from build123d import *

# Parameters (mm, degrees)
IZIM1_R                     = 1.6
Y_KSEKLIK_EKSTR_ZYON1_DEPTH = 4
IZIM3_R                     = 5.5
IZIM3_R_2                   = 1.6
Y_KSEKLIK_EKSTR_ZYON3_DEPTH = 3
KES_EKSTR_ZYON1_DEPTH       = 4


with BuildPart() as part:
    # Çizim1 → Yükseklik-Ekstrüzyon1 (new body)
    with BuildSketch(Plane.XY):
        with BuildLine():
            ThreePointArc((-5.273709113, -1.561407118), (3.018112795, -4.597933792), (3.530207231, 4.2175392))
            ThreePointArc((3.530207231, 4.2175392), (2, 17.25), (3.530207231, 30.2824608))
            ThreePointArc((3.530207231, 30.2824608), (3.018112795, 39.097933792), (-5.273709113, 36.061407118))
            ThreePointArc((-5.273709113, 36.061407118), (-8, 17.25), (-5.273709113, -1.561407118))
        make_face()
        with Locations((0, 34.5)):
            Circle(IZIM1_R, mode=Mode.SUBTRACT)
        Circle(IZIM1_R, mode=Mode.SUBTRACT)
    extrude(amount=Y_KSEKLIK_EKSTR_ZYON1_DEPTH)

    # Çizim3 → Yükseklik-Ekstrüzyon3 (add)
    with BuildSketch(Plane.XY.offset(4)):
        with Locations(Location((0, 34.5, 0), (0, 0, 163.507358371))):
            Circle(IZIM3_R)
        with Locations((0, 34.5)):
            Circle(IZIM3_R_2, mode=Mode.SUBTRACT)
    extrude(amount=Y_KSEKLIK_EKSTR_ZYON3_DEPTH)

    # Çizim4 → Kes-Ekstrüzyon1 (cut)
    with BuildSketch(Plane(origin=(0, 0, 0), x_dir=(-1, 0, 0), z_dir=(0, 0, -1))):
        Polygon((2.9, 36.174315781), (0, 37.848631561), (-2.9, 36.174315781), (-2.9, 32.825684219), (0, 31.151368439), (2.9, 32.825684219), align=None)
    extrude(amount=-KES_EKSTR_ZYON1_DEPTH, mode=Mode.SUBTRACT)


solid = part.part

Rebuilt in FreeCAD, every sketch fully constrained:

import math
import FreeCAD as App
import Part
import Sketcher

V = App.Vector
Q = App.Units.Quantity

doc = App.newDocument("Part")
params = doc.addObject("Spreadsheet::Sheet", "Params")
for row, (alias, value) in enumerate([
    ("sketch1_diameter", "3.2 mm"),
    ("sketch1_radius", "5.5 mm"),
    ("pad1_length", "4 mm"),
    ("sketch2_diameter", "11 mm"),
    ("sketch2_diameter2", "3.2 mm"),
    ("pad2_length", "3 mm"),
    ("pocket1_length", "4 mm"),
], start=1):
    params.set(f"A{row}", alias)
    params.set(f"B{row}", "=" + value)
    params.setAlias(f"B{row}", alias)

body = doc.addObject("PartDesign::Body", "Body")

# Sketch on XY plane
sketch1 = doc.addObject("Sketcher::SketchObject", "Sketch")
body.addObject(sketch1)
sketch1.AttachmentSupport = (doc.XY_Plane, [""])
sketch1.MapMode = "FlatFace"
sketch1.addGeometry(Part.ArcOfCircle(Part.Circle(V(0, 0, 0), V(0, 0, 1), 5.5), math.radians(-164), math.radians(50)), False)
sketch1.addGeometry(Part.ArcOfCircle(Part.Circle(V(58.3, 17.2, 0), V(0, 0, 1), 56.3), math.radians(167), math.radians(193)), False)
sketch1.addGeometry(Part.ArcOfCircle(Part.Circle(V(0, 34.5, 0), V(0, 0, 1), 5.5), math.radians(-50), math.radians(164)), False)
sketch1.addGeometry(Part.ArcOfCircle(Part.Circle(V(58.3, 17.2, 0), V(0, 0, 1), 66.3), math.radians(164), math.radians(196)), False)
sketch1.addGeometry(Part.Circle(V(0, 0, 0), V(0, 0, 1), 1.6), False)
sketch1.addGeometry(Part.Circle(V(0, 34.5, 0), V(0, 0, 1), 1.6), False)
sketch1.addConstraint(Sketcher.Constraint("Coincident", 0, 2, 1, 2))
sketch1.addConstraint(Sketcher.Constraint("Coincident", 1, 1, 2, 1))
sketch1.addConstraint(Sketcher.Constraint("Tangent", 2, 2, 3, 1))
sketch1.addConstraint(Sketcher.Constraint("Tangent", 3, 2, 0, 1))
sketch1.addConstraint(Sketcher.Constraint("Coincident", 0, 3, -1, 1))
sketch1.addConstraint(Sketcher.Constraint("Coincident", 4, 3, -1, 1))
sketch1.addConstraint(Sketcher.Constraint("Coincident", 3, 3, 1, 3))
sketch1.addConstraint(Sketcher.Constraint("Coincident", 5, 3, 2, 3))
sketch1.addConstraint(Sketcher.Constraint("Equal", 0, 2))
sketch1.addConstraint(Sketcher.Constraint("Equal", 4, 5))
sketch1.addConstraint(Sketcher.Constraint("PointOnObject", 2, 3, -2))
sketch1.addConstraint(Sketcher.Constraint("Diameter", 4, Q("3.2 mm")))
sketch1.addConstraint(Sketcher.Constraint("Radius", 0, Q("5.5 mm")))
sketch1.addConstraint(Sketcher.Constraint("DistanceY", -1, 1, 2, 3, Q("34.5 mm")))
sketch1.addConstraint(Sketcher.Constraint("Radius", 1, Q("56.2625 mm")))
sketch1.addConstraint(Sketcher.Constraint("Radius", 3, Q("66.2625 mm")))
sketch1.setExpression("Constraints[11]", "Params.sketch1_diameter")
sketch1.setExpression("Constraints[12]", "Params.sketch1_radius")
pad1 = doc.addObject("PartDesign::Pad", "Pad")
body.addObject(pad1)
pad1.Profile = sketch1
pad1.setExpression("Length", "Params.pad1_length")

# Sketch on XY plane
sketch2 = doc.addObject("Sketcher::SketchObject", "Sketch001")
body.addObject(sketch2)
sketch2.AttachmentSupport = (doc.XY_Plane, [""])
sketch2.MapMode = "FlatFace"
sketch2.AttachmentOffset = App.Placement(V(0, 0, 4), App.Rotation())
sketch2.addGeometry(Part.Circle(V(0, 34.5, 0), V(0, 0, 1), 5.5), False)
sketch2.addGeometry(Part.Circle(V(0, 34.5, 0), V(0, 0, 1), 1.6), False)
sketch2.addConstraint(Sketcher.Constraint("Coincident", 1, 3, 0, 3))
sketch2.addConstraint(Sketcher.Constraint("PointOnObject", 0, 3, -2))
sketch2.addConstraint(Sketcher.Constraint("Diameter", 0, Q("11 mm")))
sketch2.addConstraint(Sketcher.Constraint("Diameter", 1, Q("3.2 mm")))
sketch2.addConstraint(Sketcher.Constraint("DistanceY", -1, 1, 0, 3, Q("34.5 mm")))
sketch2.setExpression("Constraints[2]", "Params.sketch2_diameter")
sketch2.setExpression("Constraints[3]", "Params.sketch2_diameter2")
pad2 = doc.addObject("PartDesign::Pad", "Pad001")
body.addObject(pad2)
pad2.Profile = sketch2
pad2.setExpression("Length", "Params.pad2_length")

# Sketch on XY plane
sketch3 = doc.addObject("Sketcher::SketchObject", "Sketch002")
body.addObject(sketch3)
sketch3.AttachmentSupport = (doc.XY_Plane, [""])
sketch3.MapMode = "FlatFace"
sketch3.addGeometry(Part.LineSegment(V(-2.9, 36.2, 0), V(0, 37.8, 0)), False)
sketch3.addGeometry(Part.LineSegment(V(0, 37.8, 0), V(2.9, 36.2, 0)), False)
sketch3.addGeometry(Part.LineSegment(V(2.9, 36.2, 0), V(2.9, 32.8, 0)), False)
sketch3.addGeometry(Part.LineSegment(V(2.9, 32.8, 0), V(0, 31.2, 0)), False)
sketch3.addGeometry(Part.LineSegment(V(0, 31.2, 0), V(-2.9, 32.8, 0)), False)
sketch3.addGeometry(Part.LineSegment(V(-2.9, 32.8, 0), V(-2.9, 36.2, 0)), False)
sketch3.addConstraint(Sketcher.Constraint("Coincident", 0, 2, 1, 1))
sketch3.addConstraint(Sketcher.Constraint("Coincident", 1, 2, 2, 1))
sketch3.addConstraint(Sketcher.Constraint("Coincident", 2, 2, 3, 1))
sketch3.addConstraint(Sketcher.Constraint("Coincident", 3, 2, 4, 1))
sketch3.addConstraint(Sketcher.Constraint("Coincident", 4, 2, 5, 1))
sketch3.addConstraint(Sketcher.Constraint("Coincident", 5, 2, 0, 1))
sketch3.addConstraint(Sketcher.Constraint("Vertical", 2))
sketch3.addConstraint(Sketcher.Constraint("Vertical", 5))
sketch3.addConstraint(Sketcher.Constraint("Symmetric", 2, 2, 4, 2, -2))
sketch3.addConstraint(Sketcher.Constraint("PointOnObject", 0, 2, -2))
sketch3.addConstraint(Sketcher.Constraint("PointOnObject", 3, 2, -2))
sketch3.addConstraint(Sketcher.Constraint("Parallel", 0, 3))
sketch3.addConstraint(Sketcher.Constraint("Parallel", 1, 4))
sketch3.addConstraint(Sketcher.Constraint("Angle", 0, Q("30 deg")))
sketch3.addConstraint(Sketcher.Constraint("DistanceX", -1, 1, 1, 2, Q("2.9 mm")))
sketch3.addConstraint(Sketcher.Constraint("DistanceY", 2, 2, 2, 1, Q("3.348632 mm")))
sketch3.addConstraint(Sketcher.Constraint("DistanceY", -1, 1, 0, 2, Q("37.848632 mm")))
pocket1 = doc.addObject("PartDesign::Pocket", "Pocket")
body.addObject(pocket1)
pocket1.Profile = sketch3
pocket1.setExpression("Length", "Params.pocket1_length")
pocket1.Reversed = True

doc.recompute()
